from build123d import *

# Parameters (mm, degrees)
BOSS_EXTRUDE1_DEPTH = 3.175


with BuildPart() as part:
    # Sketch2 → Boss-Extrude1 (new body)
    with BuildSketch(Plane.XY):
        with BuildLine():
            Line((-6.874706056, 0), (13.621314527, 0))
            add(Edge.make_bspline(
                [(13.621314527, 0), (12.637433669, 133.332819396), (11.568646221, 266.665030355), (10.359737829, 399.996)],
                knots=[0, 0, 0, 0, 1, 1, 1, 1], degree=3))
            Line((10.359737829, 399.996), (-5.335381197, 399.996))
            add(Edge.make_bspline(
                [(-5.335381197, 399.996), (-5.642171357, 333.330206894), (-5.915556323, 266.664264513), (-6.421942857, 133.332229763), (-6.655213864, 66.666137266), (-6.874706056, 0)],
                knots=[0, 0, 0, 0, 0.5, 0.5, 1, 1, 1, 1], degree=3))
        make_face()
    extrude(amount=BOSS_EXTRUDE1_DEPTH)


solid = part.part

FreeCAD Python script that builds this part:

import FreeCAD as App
import Part
import Sketcher
from FreeCAD import Vector
Q = App.Units.Quantity

doc = App.newDocument("Part")
body = doc.addObject("PartDesign::Body", "Body")

sketch1 = body.newObject("Sketcher::SketchObject", "Sketch")
sketch1.AttachmentSupport = (doc.getObject("XY_Plane"), [""])
sketch1.MapMode = "FlatFace"
sketch1.addGeometry([
    Part.LineSegment(Vector(-6.874706, 0, 0), Vector(13.621315, 0, 0)),
    Part.BSplineCurve([Vector(13.621315, 0, 0), Vector(12.637434, 133.332819, 0), Vector(11.568646, 266.66503, 0), Vector(10.359738, 399.996, 0)], [4, 4], [0, 1], False, 3, [1, 1, 1, 1], False),
    Part.LineSegment(Vector(10.359738, 399.996, 0), Vector(-5.335381, 399.996, 0)),
    Part.BSplineCurve([Vector(-5.335381, 399.996, 0), Vector(-5.642171, 333.330207, 0), Vector(-5.915556, 266.664265, 0), Vector(-6.421943, 133.33223, 0), Vector(-6.655214, 66.666137, 0), Vector(-6.874706, 0, 0)], [4, 2, 4], [0, 0.5, 1], False, 3, [1, 1, 1, 1, 1, 1], False),
], False)
sketch1.addConstraint([
    Sketcher.Constraint("Block", 1),
    Sketcher.Constraint("Block", 3),
    Sketcher.Constraint("Coincident", 0, 2, 1, 1),
    Sketcher.Constraint("Coincident", 1, 2, 2, 1),
    Sketcher.Constraint("Coincident", 2, 2, 3, 1),
    Sketcher.Constraint("Coincident", 3, 2, 0, 1),
])
pad1 = body.newObject("PartDesign::Pad", "Pad")
pad1.Profile = sketch1
pad1.Length = Q("0.125 in")

doc.recompute()
